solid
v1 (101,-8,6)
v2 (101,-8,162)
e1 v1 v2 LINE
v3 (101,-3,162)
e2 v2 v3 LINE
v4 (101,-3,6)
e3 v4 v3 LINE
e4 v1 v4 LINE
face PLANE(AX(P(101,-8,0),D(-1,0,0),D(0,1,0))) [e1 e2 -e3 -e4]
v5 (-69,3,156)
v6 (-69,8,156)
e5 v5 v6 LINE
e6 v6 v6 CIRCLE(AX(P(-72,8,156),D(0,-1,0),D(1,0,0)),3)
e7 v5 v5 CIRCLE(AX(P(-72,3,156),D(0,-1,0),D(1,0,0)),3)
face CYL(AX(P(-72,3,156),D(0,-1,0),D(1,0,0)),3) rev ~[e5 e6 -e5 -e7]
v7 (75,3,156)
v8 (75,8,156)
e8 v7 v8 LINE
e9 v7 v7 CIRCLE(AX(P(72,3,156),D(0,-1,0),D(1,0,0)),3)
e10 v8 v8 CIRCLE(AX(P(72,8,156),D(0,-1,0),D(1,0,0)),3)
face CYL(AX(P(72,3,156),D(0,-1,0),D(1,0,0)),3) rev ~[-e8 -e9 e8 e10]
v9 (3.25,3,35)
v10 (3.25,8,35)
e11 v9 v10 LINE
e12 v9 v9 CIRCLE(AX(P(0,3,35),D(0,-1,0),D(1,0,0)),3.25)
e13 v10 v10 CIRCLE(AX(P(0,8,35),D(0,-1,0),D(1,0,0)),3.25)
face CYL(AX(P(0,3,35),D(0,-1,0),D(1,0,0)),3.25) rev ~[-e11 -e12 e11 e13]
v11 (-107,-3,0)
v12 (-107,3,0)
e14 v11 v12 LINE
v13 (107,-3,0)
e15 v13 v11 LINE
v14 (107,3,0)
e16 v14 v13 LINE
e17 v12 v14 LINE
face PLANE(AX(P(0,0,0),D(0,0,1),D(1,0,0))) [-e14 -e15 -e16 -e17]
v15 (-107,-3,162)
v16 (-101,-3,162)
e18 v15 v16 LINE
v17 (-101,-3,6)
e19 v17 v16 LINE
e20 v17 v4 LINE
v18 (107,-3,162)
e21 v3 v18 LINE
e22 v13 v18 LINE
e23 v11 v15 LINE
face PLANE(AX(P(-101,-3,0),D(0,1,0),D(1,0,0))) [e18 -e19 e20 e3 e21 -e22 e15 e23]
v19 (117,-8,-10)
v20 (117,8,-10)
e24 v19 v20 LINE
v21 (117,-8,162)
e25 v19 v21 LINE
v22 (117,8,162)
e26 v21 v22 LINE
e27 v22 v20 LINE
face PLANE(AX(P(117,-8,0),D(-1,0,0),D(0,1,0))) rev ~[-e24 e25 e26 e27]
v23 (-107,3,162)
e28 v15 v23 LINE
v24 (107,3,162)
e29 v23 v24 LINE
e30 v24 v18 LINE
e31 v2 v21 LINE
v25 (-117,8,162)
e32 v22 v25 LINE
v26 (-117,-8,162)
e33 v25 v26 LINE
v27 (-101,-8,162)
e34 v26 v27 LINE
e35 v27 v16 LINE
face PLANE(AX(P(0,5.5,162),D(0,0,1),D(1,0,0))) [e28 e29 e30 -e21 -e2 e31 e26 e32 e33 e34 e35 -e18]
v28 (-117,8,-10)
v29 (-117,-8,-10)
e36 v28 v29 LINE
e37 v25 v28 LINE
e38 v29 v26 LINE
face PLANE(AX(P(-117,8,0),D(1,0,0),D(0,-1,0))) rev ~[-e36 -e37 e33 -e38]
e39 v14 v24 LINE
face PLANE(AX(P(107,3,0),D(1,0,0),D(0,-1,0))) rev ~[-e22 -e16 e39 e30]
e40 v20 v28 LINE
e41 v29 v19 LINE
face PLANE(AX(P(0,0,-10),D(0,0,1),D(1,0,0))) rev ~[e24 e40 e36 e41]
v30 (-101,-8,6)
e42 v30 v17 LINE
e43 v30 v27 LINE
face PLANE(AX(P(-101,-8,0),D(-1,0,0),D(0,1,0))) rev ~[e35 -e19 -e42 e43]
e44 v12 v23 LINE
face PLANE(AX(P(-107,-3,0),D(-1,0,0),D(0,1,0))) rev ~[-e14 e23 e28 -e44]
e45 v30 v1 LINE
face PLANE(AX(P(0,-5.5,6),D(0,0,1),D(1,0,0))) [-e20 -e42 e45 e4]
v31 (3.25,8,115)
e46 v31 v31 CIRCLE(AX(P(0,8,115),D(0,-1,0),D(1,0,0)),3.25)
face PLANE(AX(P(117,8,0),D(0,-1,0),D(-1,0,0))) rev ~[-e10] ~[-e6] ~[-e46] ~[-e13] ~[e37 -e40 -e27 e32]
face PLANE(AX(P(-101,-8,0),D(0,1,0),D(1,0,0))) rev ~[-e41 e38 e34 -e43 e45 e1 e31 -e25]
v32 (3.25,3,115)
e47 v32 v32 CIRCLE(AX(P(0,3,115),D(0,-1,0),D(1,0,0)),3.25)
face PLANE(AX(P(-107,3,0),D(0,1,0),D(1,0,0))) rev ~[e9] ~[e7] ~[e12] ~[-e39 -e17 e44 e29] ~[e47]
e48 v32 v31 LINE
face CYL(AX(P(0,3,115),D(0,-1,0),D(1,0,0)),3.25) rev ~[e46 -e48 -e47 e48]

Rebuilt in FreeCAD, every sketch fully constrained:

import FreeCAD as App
import Part
import Sketcher
from FreeCAD import Vector

doc = App.newDocument("Part")
params = doc.addObject("Spreadsheet::Sheet", "Params")
for row, (alias, value) in enumerate([
    ("sketch1_width", "234 mm"),
    ("sketch1_height", "16 mm"),
    ("pad1_length", "10 mm"),
    ("sketch2_width", "16 mm"),
    ("sketch2_width2", "6 mm"),
    ("sketch2_width3", "214 mm"),
    ("pad2_length", "162 mm"),
    ("sketch3_width", "202 mm"),
    ("sketch3_height", "5 mm"),
    ("pad3_length", "6 mm"),
    ("sketch4_diameter", "6 mm"),
    ("sketch4_diameter2", "6.5 mm"),
    ("pocket1_length", "25 mm"),
], start=1):
    params.set(f"A{row}", alias)
    params.set(f"B{row}", "=" + value)
    params.setAlias(f"B{row}", alias)

body = doc.addObject("PartDesign::Body", "Body")

# Sketch on XY plane
sketch1 = body.newObject("Sketcher::SketchObject", "Sketch")
sketch1.AttachmentSupport = (doc.getObject("XY_Plane"), [""])
sketch1.MapMode = "FlatFace"
sketch1.addGeometry(Part.LineSegment(Vector(117, 8, 0), Vector(-117, 8, 0)), False)
sketch1.addGeometry(Part.LineSegment(Vector(-117, 8, 0), Vector(-117, -8, 0)), False)
sketch1.addGeometry(Part.LineSegment(Vector(-117, -8, 0), Vector(117, -8, 0)), False)
sketch1.addGeometry(Part.LineSegment(Vector(117, -8, 0), Vector(117, 8, 0)), False)
sketch1.addConstraint(Sketcher.Constraint("Coincident", 0, 2, 1, 1))
sketch1.addConstraint(Sketcher.Constraint("Coincident", 1, 2, 2, 1))
sketch1.addConstraint(Sketcher.Constraint("Coincident", 2, 2, 3, 1))
sketch1.addConstraint(Sketcher.Constraint("Coincident", 3, 2, 0, 1))
sketch1.addConstraint(Sketcher.Constraint("Horizontal", 0))
sketch1.addConstraint(Sketcher.Constraint("Vertical", 1))
sketch1.addConstraint(Sketcher.Constraint("Horizontal", 2))
sketch1.addConstraint(Sketcher.Constraint("Vertical", 3))
sketch1.addConstraint(Sketcher.Constraint("Symmetric", 0, 2, 2, 2, -1, 1))
sketch1.addConstraint(Sketcher.Constraint("DistanceX", 0, 2, 0, 1, 234.0))
sketch1.addConstraint(Sketcher.Constraint("DistanceY", 1, 2, 1, 1, 16.0))
sketch1.setExpression("Constraints[9]", "Params.sketch1_width")
sketch1.setExpression("Constraints[10]", "Params.sketch1_height")
pad1 = body.newObject("PartDesign::Pad", "Pad")
pad1.Profile = sketch1
pad1.setExpression("Length", "Params.pad1_length")
pad1.Reversed = True

# Sketch on XY plane
sketch2 = body.newObject("Sketcher::SketchObject", "Sketch001")
sketch2.AttachmentSupport = (doc.getObject("XY_Plane"), [""])
sketch2.MapMode = "FlatFace"
sketch2.addGeometry(Part.LineSegment(Vector(-117, 8, 0), Vector(-117, -8, 0)), False)
sketch2.addGeometry(Part.LineSegment(Vector(-117, -8, 0), Vector(-101, -8, 0)), False)
sketch2.addGeometry(Part.LineSegment(Vector(-101, -8, 0), Vector(-101, -3, 0)), False)
sketch2.addGeometry(Part.LineSegment(Vector(-101, -3, 0), Vector(-107, -3, 0)), False)
sketch2.addGeometry(Part.LineSegment(Vector(-107, -3, 0), Vector(-107, 3, 0)), False)
sketch2.addGeometry(Part.LineSegment(Vector(-107, 3, 0), Vector(107, 3, 0)), False)
sketch2.addGeometry(Part.LineSegment(Vector(107, 3, 0), Vector(107, -3, 0)), False)
sketch2.addGeometry(Part.LineSegment(Vector(107, -3, 0), Vector(101, -3, 0)), False)
sketch2.addGeometry(Part.LineSegment(Vector(101, -3, 0), Vector(101, -8, 0)), False)
sketch2.addGeometry(Part.LineSegment(Vector(101, -8, 0), Vector(117, -8, 0)), False)
sketch2.addGeometry(Part.LineSegment(Vector(117, -8, 0), Vector(117, 8, 0)), False)
sketch2.addGeometry(Part.LineSegment(Vector(117, 8, 0), Vector(-117, 8, 0)), False)
sketch2.addConstraint(Sketcher.Constraint("Coincident", 0, 2, 1, 1))
sketch2.addConstraint(Sketcher.Constraint("Coincident", 1, 2, 2, 1))
sketch2.addConstraint(Sketcher.Constraint("Coincident", 2, 2, 3, 1))
sketch2.addConstraint(Sketcher.Constraint("Coincident", 3, 2, 4, 1))
sketch2.addConstraint(Sketcher.Constraint("Coincident", 4, 2, 5, 1))
sketch2.addConstraint(Sketcher.Constraint("Coincident", 5, 2, 6, 1))
sketch2.addConstraint(Sketcher.Constraint("Coincident", 6, 2, 7, 1))
sketch2.addConstraint(Sketcher.Constraint("Coincident", 7, 2, 8, 1))
sketch2.addConstraint(Sketcher.Constraint("Coincident", 8, 2, 9, 1))
sketch2.addConstraint(Sketcher.Constraint("Coincident", 9, 2, 10, 1))
sketch2.addConstraint(Sketcher.Constraint("Coincident", 10, 2, 11, 1))
sketch2.addConstraint(Sketcher.Constraint("Coincident", 11, 2, 0, 1))
sketch2.addConstraint(Sketcher.Constraint("Vertical", 0))
sketch2.addConstraint(Sketcher.Constraint("Horizontal", 1))
sketch2.addConstraint(Sketcher.Constraint("Vertical", 2))
sketch2.addConstraint(Sketcher.Constraint("Horizontal", 3))
sketch2.addConstraint(Sketcher.Constraint("Vertical", 4))
sketch2.addConstraint(Sketcher.Constraint("Horizontal", 5))
sketch2.addConstraint(Sketcher.Constraint("Vertical", 6))
sketch2.addConstraint(Sketcher.Constraint("Horizontal", 7))
sketch2.addConstraint(Sketcher.Constraint("Vertical", 8))
sketch2.addConstraint(Sketcher.Constraint("Horizontal", 9))
sketch2.addConstraint(Sketcher.Constraint("Vertical", 10))
sketch2.addConstraint(Sketcher.Constraint("Horizontal", 11))
sketch2.addConstraint(Sketcher.Constraint("Symmetric", 3, 2, 5, 2, -1, 1))
sketch2.addConstraint(Sketcher.Constraint("Symmetric", 0, 2, 10, 2, -1, 1))
sketch2.addConstraint(Sketcher.Constraint("Symmetric", 2, 2, 7, 2, -2))
sketch2.addConstraint(Sketcher.Constraint("Horizontal", 1, 2, 8, 2))
sketch2.addConstraint(Sketcher.Constraint("Equal", 9, 0))
sketch2.addConstraint(Sketcher.Constraint("Equal", 7, 4))
sketch2.addConstraint(Sketcher.Constraint("DistanceX", 1, 1, 1, 2, 16.0))
sketch2.addConstraint(Sketcher.Constraint("DistanceX", 3, 2, 3, 1, 6.0))
sketch2.addConstraint(Sketcher.Constraint("DistanceX", 5, 1, 5, 2, 214.0))
sketch2.setExpression("Constraints[30]", "Params.sketch2_width")
sketch2.setExpression("Constraints[31]", "Params.sketch2_width2")
sketch2.setExpression("Constraints[32]", "Params.sketch2_width3")
pad2 = body.newObject("PartDesign::Pad", "Pad001")
pad2.Profile = sketch2
pad2.setExpression("Length", "Params.pad2_length")

# Sketch on XY plane
sketch3 = body.newObject("Sketcher::SketchObject", "Sketch002")
sketch3.AttachmentSupport = (doc.getObject("XY_Plane"), [""])
sketch3.MapMode = "FlatFace"
sketch3.addGeometry(Part.LineSegment(Vector(-101, -3, 0), Vector(-101, -8, 0)), False)
sketch3.addGeometry(Part.LineSegment(Vector(-101, -8, 0), Vector(101, -8, 0)), False)
sketch3.addGeometry(Part.LineSegment(Vector(101, -8, 0), Vector(101, -3, 0)), False)
sketch3.addGeometry(Part.LineSegment(Vector(101, -3, 0), Vector(-101, -3, 0)), False)
sketch3.addConstraint(Sketcher.Constraint("Coincident", 0, 2, 1, 1))
sketch3.addConstraint(Sketcher.Constraint("Coincident", 1, 2, 2, 1))
sketch3.addConstraint(Sketcher.Constraint("Coincident", 2, 2, 3, 1))
sketch3.addConstraint(Sketcher.Constraint("Coincident", 3, 2, 0, 1))
sketch3.addConstraint(Sketcher.Constraint("Vertical", 0))
sketch3.addConstraint(Sketcher.Constraint("Horizontal", 1))
sketch3.addConstraint(Sketcher.Constraint("Vertical", 2))
sketch3.addConstraint(Sketcher.Constraint("Horizontal", 3))
sketch3.addConstraint(Sketcher.Constraint("DistanceX", 1, 1, 1, 2, 202.0))
sketch3.addConstraint(Sketcher.Constraint("DistanceY", 0, 2, 0, 1, 5.0))
sketch3.addConstraint(Sketcher.Constraint("DistanceX", 0, 2, -1, 1, 101.0))
sketch3.addConstraint(Sketcher.Constraint("DistanceY", 0, 2, -1, 1, 8.0))
sketch3.setExpression("Constraints[8]", "Params.sketch3_width")
sketch3.setExpression("Constraints[9]", "Params.sketch3_height")
pad3 = body.newObject("PartDesign::Pad", "Pad002")
pad3.Profile = sketch3
pad3.setExpression("Length", "Params.pad3_length")

# Sketch on XZ plane
sketch4 = body.newObject("Sketcher::SketchObject", "Sketch003")
sketch4.AttachmentSupport = (doc.getObject("XZ_Plane"), [""])
sketch4.MapMode = "FlatFace"
sketch4.AttachmentOffset = App.Placement(Vector(0, 0, -3), App.Rotation())
sketch4.addGeometry(Part.Circle(Vector(0, 115, 0), Vector(0, 0, 1), 3.2), False)
sketch4.addGeometry(Part.Circle(Vector(72, 156, 0), Vector(0, 0, 1), 3), False)
sketch4.addGeometry(Part.Circle(Vector(0, 35, 0), Vector(0, 0, 1), 3.2), False)
sketch4.addGeometry(Part.Circle(Vector(-72, 156, 0), Vector(0, 0, 1), 3), False)
sketch4.addConstraint(Sketcher.Constraint("Equal", 0, 2))
sketch4.addConstraint(Sketcher.Constraint("Equal", 1, 3))
sketch4.addConstraint(Sketcher.Constraint("Symmetric", 1, 3, 3, 3, -2))
sketch4.addConstraint(Sketcher.Constraint("PointOnObject", 0, 3, -2))
sketch4.addConstraint(Sketcher.Constraint("PointOnObject", 2, 3, -2))
sketch4.addConstraint(Sketcher.Constraint("Diameter", 1, 6.0))
sketch4.addConstraint(Sketcher.Constraint("Diameter", 0, 6.5))
sketch4.addConstraint(Sketcher.Constraint("DistanceY", -1, 1, 0, 3, 115.0))
sketch4.addConstraint(Sketcher.Constraint("DistanceX", -1, 1, 1, 3, 72.0))
sketch4.addConstraint(Sketcher.Constraint("DistanceY", -1, 1, 1, 3, 156.0))
sketch4.addConstraint(Sketcher.Constraint("DistanceY", -1, 1, 2, 3, 35.0))
sketch4.setExpression("Constraints[5]", "Params.sketch4_diameter")
sketch4.setExpression("Constraints[6]", "Params.sketch4_diameter2")
pocket1 = body.newObject("PartDesign::Pocket", "Pocket")
pocket1.Profile = sketch4
pocket1.setExpression("Length", "Params.pocket1_length")

doc.recompute()
